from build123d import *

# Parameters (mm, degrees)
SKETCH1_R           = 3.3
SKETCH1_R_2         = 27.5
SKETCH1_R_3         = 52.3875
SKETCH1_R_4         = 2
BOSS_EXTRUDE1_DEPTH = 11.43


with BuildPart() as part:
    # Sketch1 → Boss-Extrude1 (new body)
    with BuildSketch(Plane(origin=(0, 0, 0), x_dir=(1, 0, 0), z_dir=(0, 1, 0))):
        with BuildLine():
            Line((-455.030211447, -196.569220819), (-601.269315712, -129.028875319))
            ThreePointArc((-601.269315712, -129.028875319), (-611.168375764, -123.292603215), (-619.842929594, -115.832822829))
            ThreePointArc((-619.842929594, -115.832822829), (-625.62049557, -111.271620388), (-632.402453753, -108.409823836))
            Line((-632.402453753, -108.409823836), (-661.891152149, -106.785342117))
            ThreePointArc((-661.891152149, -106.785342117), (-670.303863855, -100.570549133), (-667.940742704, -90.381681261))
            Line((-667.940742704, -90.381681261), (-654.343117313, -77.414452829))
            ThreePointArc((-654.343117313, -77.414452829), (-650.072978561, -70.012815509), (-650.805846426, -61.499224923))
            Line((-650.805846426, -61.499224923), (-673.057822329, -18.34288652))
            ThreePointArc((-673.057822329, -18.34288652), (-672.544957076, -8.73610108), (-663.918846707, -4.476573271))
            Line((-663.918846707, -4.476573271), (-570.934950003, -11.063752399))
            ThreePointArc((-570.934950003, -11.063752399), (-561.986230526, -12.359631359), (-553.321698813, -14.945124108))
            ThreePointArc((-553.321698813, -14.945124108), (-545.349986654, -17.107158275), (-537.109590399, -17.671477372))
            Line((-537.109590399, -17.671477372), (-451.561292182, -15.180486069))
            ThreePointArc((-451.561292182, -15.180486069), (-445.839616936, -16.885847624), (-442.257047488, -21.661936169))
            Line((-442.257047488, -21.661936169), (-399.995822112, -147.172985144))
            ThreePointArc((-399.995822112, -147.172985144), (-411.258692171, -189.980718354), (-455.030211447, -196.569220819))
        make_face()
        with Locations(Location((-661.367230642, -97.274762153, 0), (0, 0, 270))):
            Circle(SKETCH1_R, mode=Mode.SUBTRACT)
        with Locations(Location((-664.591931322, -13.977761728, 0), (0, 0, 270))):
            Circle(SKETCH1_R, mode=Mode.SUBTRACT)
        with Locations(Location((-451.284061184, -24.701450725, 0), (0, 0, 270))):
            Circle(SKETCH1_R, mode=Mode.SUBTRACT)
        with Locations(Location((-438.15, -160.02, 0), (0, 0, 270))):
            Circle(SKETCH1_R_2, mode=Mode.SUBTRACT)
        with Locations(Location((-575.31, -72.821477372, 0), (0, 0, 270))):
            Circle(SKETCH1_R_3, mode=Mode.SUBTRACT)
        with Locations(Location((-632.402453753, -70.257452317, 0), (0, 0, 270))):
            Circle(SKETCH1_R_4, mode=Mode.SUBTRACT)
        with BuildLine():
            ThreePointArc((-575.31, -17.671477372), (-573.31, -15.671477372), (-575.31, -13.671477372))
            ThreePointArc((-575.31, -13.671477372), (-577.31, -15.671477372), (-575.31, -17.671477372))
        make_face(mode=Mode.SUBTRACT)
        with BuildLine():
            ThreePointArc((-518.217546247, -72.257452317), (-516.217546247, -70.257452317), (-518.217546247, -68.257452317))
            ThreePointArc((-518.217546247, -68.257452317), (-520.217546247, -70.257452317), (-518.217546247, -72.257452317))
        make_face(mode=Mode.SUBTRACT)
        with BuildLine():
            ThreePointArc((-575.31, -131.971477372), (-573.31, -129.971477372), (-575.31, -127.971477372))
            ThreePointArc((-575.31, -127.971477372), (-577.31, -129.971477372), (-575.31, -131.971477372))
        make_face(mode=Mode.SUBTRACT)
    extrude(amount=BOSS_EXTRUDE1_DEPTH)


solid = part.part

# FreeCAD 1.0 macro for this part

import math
import FreeCAD as App
import Part
import Sketcher
from FreeCAD import Vector
Q = App.Units.Quantity

doc = App.newDocument("Part")
params = doc.addObject("Spreadsheet::Sheet", "Params")
for row, (alias, value) in enumerate([
    ("sketch1_diameter", "4.125 in"),
    ("sketch1_radius", "1.585 in"),
    ("sketch1_radius2", "0.375 in"),
    ("sketch1_radius3", "2.4375 in"),
    ("pad1_length", "0.45 in"),
], start=1):
    params.set(f"A{row}", alias)
    params.set(f"B{row}", "=" + value)
    params.setAlias(f"B{row}", alias)

body = doc.addObject("PartDesign::Body", "Body")

# Sketch on XZ plane
sketch1 = body.newObject("Sketcher::SketchObject", "Sketch")
sketch1.AttachmentSupport = (doc.getObject("XZ_Plane"), [""])
sketch1.MapMode = "FlatFace"
sketch1.addGeometry(Part.LineSegment(Vector(-601.269316, 129.028875, 0), Vector(-455.030211, 196.569221, 0)), False)
sketch1.addGeometry(Part.ArcOfCircle(Part.Circle(Vector(-438.15, 160.02, 0), Vector(0, 0, 1), 40.259), math.radians(-18.609058), math.radians(114.789794)), False)
sketch1.addGeometry(Part.LineSegment(Vector(-399.995822, 147.172985, 0), Vector(-442.257047, 21.661936, 0)), False)
sketch1.addGeometry(Part.ArcOfCircle(Part.Circle(Vector(-451.284061, 24.701451, 0), Vector(0, 0, 1), 9.525), math.radians(-91.667865), math.radians(-18.609058)), False)
sketch1.addGeometry(Part.LineSegment(Vector(-451.561292, 15.180486, 0), Vector(-537.10959, 17.671477, 0)), False)
sketch1.addGeometry(Part.ArcOfCircle(Part.Circle(Vector(-538.366699, -24.418574, 0), Vector(0, 0, 1), 42.10882), math.radians(88.289249), math.radians(110.802714)), False)
sketch1.addGeometry(Part.ArcOfCircle(Part.Circle(Vector(-575.31, 72.821477, 0), Vector(0, 0, 1), 61.9125), math.radians(-85.947814), math.radians(-69.197286)), False)
sketch1.addGeometry(Part.LineSegment(Vector(-570.93495, 11.063752, 0), Vector(-663.918847, 4.476573, 0)), False)
sketch1.addGeometry(Part.ArcOfCircle(Part.Circle(Vector(-664.591931, 13.977762, 0), Vector(0, 0, 1), 9.525), math.radians(152.723773), math.radians(274.052186)), False)
sketch1.addGeometry(Part.LineSegment(Vector(-673.057822, 18.342887, 0), Vector(-650.805846, 61.499225, 0)), False)
sketch1.addGeometry(Part.ArcOfCircle(Part.Circle(Vector(-663.980843, 66.921695, 0), Vector(0, 0, 1), 14.247236), math.radians(-22.370733), math.radians(47.432146)), False)
sketch1.addGeometry(Part.LineSegment(Vector(-654.343117, 77.414453, 0), Vector(-667.940743, 90.381681, 0)), False)
sketch1.addGeometry(Part.ArcOfCircle(Part.Circle(Vector(-661.367231, 97.274762, 0), Vector(0, 0, 1), 9.525), math.radians(93.153139), math.radians(226.359402)), False)
sketch1.addGeometry(Part.LineSegment(Vector(-661.891152, 106.785342, 0), Vector(-632.402454, 108.409824, 0)), False)
sketch1.addGeometry(Part.ArcOfCircle(Part.Circle(Vector(-639.586583, 134.901883, 0), Vector(0, 0, 1), 27.448878), math.radians(-74.827403), math.radians(-44.004257)), False)
sketch1.addGeometry(Part.ArcOfCircle(Part.Circle(Vector(-575.31, 72.821477, 0), Vector(0, 0, 1), 61.9125), math.radians(114.789794), math.radians(135.995743)), False)
sketch1.addGeometry(Part.Circle(Vector(-438.15, 160.02, 0), Vector(0, 0, 1), 27.5), False)
sketch1.addGeometry(Part.Circle(Vector(-575.31, 129.971477, 0), Vector(0, 0, 1), 2), False)
sketch1.addGeometry(Part.Circle(Vector(-518.217546, 70.257452, 0), Vector(0, 0, 1), 2), False)
sketch1.addGeometry(Part.Circle(Vector(-451.284061, 24.701451, 0), Vector(0, 0, 1), 3.3), False)
sketch1.addGeometry(Part.Circle(Vector(-575.31, 72.821477, 0), Vector(0, 0, 1), 52.3875), False)
sketch1.addGeometry(Part.Circle(Vector(-661.367231, 97.274762, 0), Vector(0, 0, 1), 3.3), False)
sketch1.addGeometry(Part.Circle(Vector(-632.402454, 70.257452, 0), Vector(0, 0, 1), 2), False)
sketch1.addGeometry(Part.Circle(Vector(-575.31, 15.671477, 0), Vector(0, 0, 1), 2), False)
sketch1.addGeometry(Part.Circle(Vector(-664.591931, 13.977762, 0), Vector(0, 0, 1), 3.3), False)
sketch1.addConstraint(Sketcher.Constraint("Tangent", 0, 2, 1, 2))
sketch1.addConstraint(Sketcher.Constraint("Tangent", 1, 1, 2, 1))
sketch1.addConstraint(Sketcher.Constraint("Tangent", 2, 2, 3, 2))
sketch1.addConstraint(Sketcher.Constraint("Tangent", 3, 1, 4, 1))
sketch1.addConstraint(Sketcher.Constraint("Coincident", 4, 2, 5, 1))
sketch1.addConstraint(Sketcher.Constraint("Tangent", 5, 2, 6, 2))
sketch1.addConstraint(Sketcher.Constraint("Tangent", 6, 1, 7, 1))
sketch1.addConstraint(Sketcher.Constraint("Tangent", 7, 2, 8, 2))
sketch1.addConstraint(Sketcher.Constraint("Tangent", 8, 1, 9, 1))
sketch1.addConstraint(Sketcher.Constraint("Coincident", 9, 2, 10, 1))
sketch1.addConstraint(Sketcher.Constraint("Coincident", 10, 2, 11, 1))
sketch1.addConstraint(Sketcher.Constraint("Tangent", 11, 2, 12, 2))
sketch1.addConstraint(Sketcher.Constraint("Tangent", 12, 1, 13, 1))
sketch1.addConstraint(Sketcher.Constraint("Coincident", 13, 2, 14, 1))
sketch1.addConstraint(Sketcher.Constraint("Tangent", 14, 2, 15, 2))
sketch1.addConstraint(Sketcher.Constraint("Tangent", 15, 1, 0, 1))
sketch1.addConstraint(Sketcher.Constraint("Coincident", 15, 3, 6, 3))
sketch1.addConstraint(Sketcher.Constraint("Coincident", 16, 3, 1, 3))
sketch1.addConstraint(Sketcher.Constraint("Coincident", 19, 3, 3, 3))
sketch1.addConstraint(Sketcher.Constraint("Coincident", 20, 3, 6, 3))
sketch1.addConstraint(Sketcher.Constraint("Coincident", 21, 3, 12, 3))
sketch1.addConstraint(Sketcher.Constraint("Coincident", 24, 3, 8, 3))
sketch1.addConstraint(Sketcher.Constraint("Equal", 3, 8))
sketch1.addConstraint(Sketcher.Constraint("Equal", 8, 12))
sketch1.addConstraint(Sketcher.Constraint("Equal", 6, 15))
sketch1.addConstraint(Sketcher.Constraint("Equal", 17, 18))
sketch1.addConstraint(Sketcher.Constraint("Equal", 19, 21))
sketch1.addConstraint(Sketcher.Constraint("Equal", 18, 22))
sketch1.addConstraint(Sketcher.Constraint("Equal", 22, 23))
sketch1.addConstraint(Sketcher.Constraint("Equal", 21, 24))
sketch1.addConstraint(Sketcher.Constraint("Horizontal", 18, 3, 22, 3))
sketch1.addConstraint(Sketcher.Constraint("Vertical", 15, 3, 17, 3))
sketch1.addConstraint(Sketcher.Constraint("Vertical", 20, 3, 23, 3))
sketch1.addConstraint(Sketcher.Constraint("Vertical", 22, 3, 13, 2))
sketch1.addConstraint(Sketcher.Constraint("Diameter", 20, Q("4.125 in")))
sketch1.addConstraint(Sketcher.Constraint("Radius", 1, Q("1.585 in")))
sketch1.addConstraint(Sketcher.Constraint("Radius", 3, Q("0.375 in")))
sketch1.addConstraint(Sketcher.Constraint("Radius", 6, Q("2.4375 in")))
sketch1.addConstraint(Sketcher.Constraint("DistanceY", -1, 1, 1, 3, Q("6.3 in")))
sketch1.addConstraint(Sketcher.Constraint("DistanceX", 6, 3, 1, 3, Q("5.4 in")))
sketch1.addConstraint(Sketcher.Constraint("Diameter", 16, 55.0))
sketch1.addConstraint(Sketcher.Constraint("Diameter", 17, 4.0))
sketch1.addConstraint(Sketcher.Constraint("Diameter", 19, 6.6))
sketch1.addConstraint(Sketcher.Constraint("DistanceX", 1, 3, -1, 1, Q("17.25 in")))
sketch1.addConstraint(Sketcher.Constraint("DistanceY", 15, 3, 17, 3, Q("2.25 in")))
sketch1.addConstraint(Sketcher.Constraint("DistanceY", 23, 3, 6, 3, Q("2.25 in")))
sketch1.addConstraint(Sketcher.Constraint("Radius", 5, 42.10882))
sketch1.addConstraint(Sketcher.Constraint("Radius", 10, 14.247236))
sketch1.addConstraint(Sketcher.Constraint("Radius", 14, 27.448878))
sketch1.addConstraint(Sketcher.Constraint("DistanceY", 12, 1, 14, 2, Q("0.3562 in")))
sketch1.addConstraint(Sketcher.Constraint("DistanceX", 5, 3, -1, 1, 538.366699))
sketch1.addConstraint(Sketcher.Constraint("DistanceX", 8, 3, 12, 3, 3.224701))
sketch1.addConstraint(Sketcher.Constraint("DistanceY", 8, 3, 12, 3, 83.297))
sketch1.addConstraint(Sketcher.Constraint("DistanceY", 3, 3, 18, 3, 45.556002))
sketch1.addConstraint(Sketcher.Constraint("DistanceX", 18, 3, 2, 2, 75.960499))
sketch1.addConstraint(Sketcher.Constraint("DistanceY", 23, 3, 4, 2, 2.0))
sketch1.addConstraint(Sketcher.Constraint("DistanceY", 22, 3, 10, 2, 7.157001))
sketch1.addConstraint(Sketcher.Constraint("DistanceX", 11, 2, 10, 3, 3.9599))
sketch1.addConstraint(Sketcher.Constraint("DistanceX", 12, 1, 13, 2, 29.488698))
sketch1.addConstraint(Sketcher.Constraint("DistanceY", 13, 2, 14, 2, 7.422999))
sketch1.addConstraint(Sketcher.Constraint("DistanceX", 21, 3, 14, 2, 41.524301))
sketch1.addConstraint(Sketcher.Constraint("Distance", 2, 132.43502))
sketch1.addConstraint(Sketcher.Constraint("Distance", 9, 48.555329))
sketch1.addConstraint(Sketcher.Constraint("DistanceX", 3, 3, -1, 1, 451.284061))
sketch1.addConstraint(Sketcher.Constraint("DistanceY", -1, 1, 8, 3, 13.977762))
sketch1.addConstraint(Sketcher.Constraint("DistanceY", -1, 1, 11, 2, 90.381681))
sketch1.setExpression("Constraints[34]", "Params.sketch1_diameter")
sketch1.setExpression("Constraints[35]", "Params.sketch1_radius")
sketch1.setExpression("Constraints[36]", "Params.sketch1_radius2")
sketch1.setExpression("Constraints[37]", "Params.sketch1_radius3")
pad1 = body.newObject("PartDesign::Pad", "Pad")
pad1.Profile = sketch1
pad1.setExpression("Length", "Params.pad1_length")
pad1.Reversed = True

doc.recompute()
